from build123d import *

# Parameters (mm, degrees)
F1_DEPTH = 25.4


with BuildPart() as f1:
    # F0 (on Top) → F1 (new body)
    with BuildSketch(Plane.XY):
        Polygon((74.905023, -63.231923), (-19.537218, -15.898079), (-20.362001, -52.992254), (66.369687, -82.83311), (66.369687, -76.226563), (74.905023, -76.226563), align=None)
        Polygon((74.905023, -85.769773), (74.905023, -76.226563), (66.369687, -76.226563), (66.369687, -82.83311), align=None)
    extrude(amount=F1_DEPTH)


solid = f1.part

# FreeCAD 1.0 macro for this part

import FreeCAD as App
import Part
import Sketcher
from FreeCAD import Vector
Q = App.Units.Quantity


def add_polygon(sketch, points):
    """Adds a closed chain of lines whose ends are joined by coincident constraints."""
    first, n = sketch.GeometryCount, len(points)
    for a, b in zip(points, points[1:] + points[:1]):
        sketch.addGeometry(Part.LineSegment(App.Vector(*a, 0), App.Vector(*b, 0)), False)
    for i in range(n):
        sketch.addConstraint(Sketcher.Constraint("Coincident", first + i, 2, first + (i + 1) % n, 1))

doc = App.newDocument("Part")
body = doc.addObject("PartDesign::Body", "Body")

# Sketch on XY plane
sketch1 = body.newObject("Sketcher::SketchObject", "Sketch")
sketch1.AttachmentSupport = (doc.getObject("XY_Plane"), [""])
sketch1.MapMode = "FlatFace"
add_polygon(sketch1, [(74.905023, -63.231923), (-19.537218, -15.898079), (-20.362001, -52.992254), (66.369687, -82.83311), (74.905023, -85.769773)])  # lines 0-4
sketch1.addConstraint([
    Sketcher.Constraint("Vertical", 4),
    Sketcher.Constraint("Parallel", 2, 3),
    Sketcher.Constraint("DistanceY", 4, 1, 4, 2, 22.53785),
    Sketcher.Constraint("DistanceX", 1, 2, -1, 1, 20.362001),
    Sketcher.Constraint("DistanceY", 0, 2, -1, 1, 15.898079),
    Sketcher.Constraint("DistanceY", 2, 2, -1, 1, 82.83311),
    Sketcher.Constraint("DistanceY", 3, 2, 1, 2, 32.777519),
    Sketcher.Constraint("DistanceX", 0, 2, 3, 2, 94.442241),
    Sketcher.Constraint("Distance", 0, 105.640095),
    Sketcher.Constraint("Distance", 1, 37.103343),
])
pad1 = body.newObject("PartDesign::Pad", "Pad")
pad1.Profile = sketch1
pad1.Length = Q("1 in")

doc.recompute()
